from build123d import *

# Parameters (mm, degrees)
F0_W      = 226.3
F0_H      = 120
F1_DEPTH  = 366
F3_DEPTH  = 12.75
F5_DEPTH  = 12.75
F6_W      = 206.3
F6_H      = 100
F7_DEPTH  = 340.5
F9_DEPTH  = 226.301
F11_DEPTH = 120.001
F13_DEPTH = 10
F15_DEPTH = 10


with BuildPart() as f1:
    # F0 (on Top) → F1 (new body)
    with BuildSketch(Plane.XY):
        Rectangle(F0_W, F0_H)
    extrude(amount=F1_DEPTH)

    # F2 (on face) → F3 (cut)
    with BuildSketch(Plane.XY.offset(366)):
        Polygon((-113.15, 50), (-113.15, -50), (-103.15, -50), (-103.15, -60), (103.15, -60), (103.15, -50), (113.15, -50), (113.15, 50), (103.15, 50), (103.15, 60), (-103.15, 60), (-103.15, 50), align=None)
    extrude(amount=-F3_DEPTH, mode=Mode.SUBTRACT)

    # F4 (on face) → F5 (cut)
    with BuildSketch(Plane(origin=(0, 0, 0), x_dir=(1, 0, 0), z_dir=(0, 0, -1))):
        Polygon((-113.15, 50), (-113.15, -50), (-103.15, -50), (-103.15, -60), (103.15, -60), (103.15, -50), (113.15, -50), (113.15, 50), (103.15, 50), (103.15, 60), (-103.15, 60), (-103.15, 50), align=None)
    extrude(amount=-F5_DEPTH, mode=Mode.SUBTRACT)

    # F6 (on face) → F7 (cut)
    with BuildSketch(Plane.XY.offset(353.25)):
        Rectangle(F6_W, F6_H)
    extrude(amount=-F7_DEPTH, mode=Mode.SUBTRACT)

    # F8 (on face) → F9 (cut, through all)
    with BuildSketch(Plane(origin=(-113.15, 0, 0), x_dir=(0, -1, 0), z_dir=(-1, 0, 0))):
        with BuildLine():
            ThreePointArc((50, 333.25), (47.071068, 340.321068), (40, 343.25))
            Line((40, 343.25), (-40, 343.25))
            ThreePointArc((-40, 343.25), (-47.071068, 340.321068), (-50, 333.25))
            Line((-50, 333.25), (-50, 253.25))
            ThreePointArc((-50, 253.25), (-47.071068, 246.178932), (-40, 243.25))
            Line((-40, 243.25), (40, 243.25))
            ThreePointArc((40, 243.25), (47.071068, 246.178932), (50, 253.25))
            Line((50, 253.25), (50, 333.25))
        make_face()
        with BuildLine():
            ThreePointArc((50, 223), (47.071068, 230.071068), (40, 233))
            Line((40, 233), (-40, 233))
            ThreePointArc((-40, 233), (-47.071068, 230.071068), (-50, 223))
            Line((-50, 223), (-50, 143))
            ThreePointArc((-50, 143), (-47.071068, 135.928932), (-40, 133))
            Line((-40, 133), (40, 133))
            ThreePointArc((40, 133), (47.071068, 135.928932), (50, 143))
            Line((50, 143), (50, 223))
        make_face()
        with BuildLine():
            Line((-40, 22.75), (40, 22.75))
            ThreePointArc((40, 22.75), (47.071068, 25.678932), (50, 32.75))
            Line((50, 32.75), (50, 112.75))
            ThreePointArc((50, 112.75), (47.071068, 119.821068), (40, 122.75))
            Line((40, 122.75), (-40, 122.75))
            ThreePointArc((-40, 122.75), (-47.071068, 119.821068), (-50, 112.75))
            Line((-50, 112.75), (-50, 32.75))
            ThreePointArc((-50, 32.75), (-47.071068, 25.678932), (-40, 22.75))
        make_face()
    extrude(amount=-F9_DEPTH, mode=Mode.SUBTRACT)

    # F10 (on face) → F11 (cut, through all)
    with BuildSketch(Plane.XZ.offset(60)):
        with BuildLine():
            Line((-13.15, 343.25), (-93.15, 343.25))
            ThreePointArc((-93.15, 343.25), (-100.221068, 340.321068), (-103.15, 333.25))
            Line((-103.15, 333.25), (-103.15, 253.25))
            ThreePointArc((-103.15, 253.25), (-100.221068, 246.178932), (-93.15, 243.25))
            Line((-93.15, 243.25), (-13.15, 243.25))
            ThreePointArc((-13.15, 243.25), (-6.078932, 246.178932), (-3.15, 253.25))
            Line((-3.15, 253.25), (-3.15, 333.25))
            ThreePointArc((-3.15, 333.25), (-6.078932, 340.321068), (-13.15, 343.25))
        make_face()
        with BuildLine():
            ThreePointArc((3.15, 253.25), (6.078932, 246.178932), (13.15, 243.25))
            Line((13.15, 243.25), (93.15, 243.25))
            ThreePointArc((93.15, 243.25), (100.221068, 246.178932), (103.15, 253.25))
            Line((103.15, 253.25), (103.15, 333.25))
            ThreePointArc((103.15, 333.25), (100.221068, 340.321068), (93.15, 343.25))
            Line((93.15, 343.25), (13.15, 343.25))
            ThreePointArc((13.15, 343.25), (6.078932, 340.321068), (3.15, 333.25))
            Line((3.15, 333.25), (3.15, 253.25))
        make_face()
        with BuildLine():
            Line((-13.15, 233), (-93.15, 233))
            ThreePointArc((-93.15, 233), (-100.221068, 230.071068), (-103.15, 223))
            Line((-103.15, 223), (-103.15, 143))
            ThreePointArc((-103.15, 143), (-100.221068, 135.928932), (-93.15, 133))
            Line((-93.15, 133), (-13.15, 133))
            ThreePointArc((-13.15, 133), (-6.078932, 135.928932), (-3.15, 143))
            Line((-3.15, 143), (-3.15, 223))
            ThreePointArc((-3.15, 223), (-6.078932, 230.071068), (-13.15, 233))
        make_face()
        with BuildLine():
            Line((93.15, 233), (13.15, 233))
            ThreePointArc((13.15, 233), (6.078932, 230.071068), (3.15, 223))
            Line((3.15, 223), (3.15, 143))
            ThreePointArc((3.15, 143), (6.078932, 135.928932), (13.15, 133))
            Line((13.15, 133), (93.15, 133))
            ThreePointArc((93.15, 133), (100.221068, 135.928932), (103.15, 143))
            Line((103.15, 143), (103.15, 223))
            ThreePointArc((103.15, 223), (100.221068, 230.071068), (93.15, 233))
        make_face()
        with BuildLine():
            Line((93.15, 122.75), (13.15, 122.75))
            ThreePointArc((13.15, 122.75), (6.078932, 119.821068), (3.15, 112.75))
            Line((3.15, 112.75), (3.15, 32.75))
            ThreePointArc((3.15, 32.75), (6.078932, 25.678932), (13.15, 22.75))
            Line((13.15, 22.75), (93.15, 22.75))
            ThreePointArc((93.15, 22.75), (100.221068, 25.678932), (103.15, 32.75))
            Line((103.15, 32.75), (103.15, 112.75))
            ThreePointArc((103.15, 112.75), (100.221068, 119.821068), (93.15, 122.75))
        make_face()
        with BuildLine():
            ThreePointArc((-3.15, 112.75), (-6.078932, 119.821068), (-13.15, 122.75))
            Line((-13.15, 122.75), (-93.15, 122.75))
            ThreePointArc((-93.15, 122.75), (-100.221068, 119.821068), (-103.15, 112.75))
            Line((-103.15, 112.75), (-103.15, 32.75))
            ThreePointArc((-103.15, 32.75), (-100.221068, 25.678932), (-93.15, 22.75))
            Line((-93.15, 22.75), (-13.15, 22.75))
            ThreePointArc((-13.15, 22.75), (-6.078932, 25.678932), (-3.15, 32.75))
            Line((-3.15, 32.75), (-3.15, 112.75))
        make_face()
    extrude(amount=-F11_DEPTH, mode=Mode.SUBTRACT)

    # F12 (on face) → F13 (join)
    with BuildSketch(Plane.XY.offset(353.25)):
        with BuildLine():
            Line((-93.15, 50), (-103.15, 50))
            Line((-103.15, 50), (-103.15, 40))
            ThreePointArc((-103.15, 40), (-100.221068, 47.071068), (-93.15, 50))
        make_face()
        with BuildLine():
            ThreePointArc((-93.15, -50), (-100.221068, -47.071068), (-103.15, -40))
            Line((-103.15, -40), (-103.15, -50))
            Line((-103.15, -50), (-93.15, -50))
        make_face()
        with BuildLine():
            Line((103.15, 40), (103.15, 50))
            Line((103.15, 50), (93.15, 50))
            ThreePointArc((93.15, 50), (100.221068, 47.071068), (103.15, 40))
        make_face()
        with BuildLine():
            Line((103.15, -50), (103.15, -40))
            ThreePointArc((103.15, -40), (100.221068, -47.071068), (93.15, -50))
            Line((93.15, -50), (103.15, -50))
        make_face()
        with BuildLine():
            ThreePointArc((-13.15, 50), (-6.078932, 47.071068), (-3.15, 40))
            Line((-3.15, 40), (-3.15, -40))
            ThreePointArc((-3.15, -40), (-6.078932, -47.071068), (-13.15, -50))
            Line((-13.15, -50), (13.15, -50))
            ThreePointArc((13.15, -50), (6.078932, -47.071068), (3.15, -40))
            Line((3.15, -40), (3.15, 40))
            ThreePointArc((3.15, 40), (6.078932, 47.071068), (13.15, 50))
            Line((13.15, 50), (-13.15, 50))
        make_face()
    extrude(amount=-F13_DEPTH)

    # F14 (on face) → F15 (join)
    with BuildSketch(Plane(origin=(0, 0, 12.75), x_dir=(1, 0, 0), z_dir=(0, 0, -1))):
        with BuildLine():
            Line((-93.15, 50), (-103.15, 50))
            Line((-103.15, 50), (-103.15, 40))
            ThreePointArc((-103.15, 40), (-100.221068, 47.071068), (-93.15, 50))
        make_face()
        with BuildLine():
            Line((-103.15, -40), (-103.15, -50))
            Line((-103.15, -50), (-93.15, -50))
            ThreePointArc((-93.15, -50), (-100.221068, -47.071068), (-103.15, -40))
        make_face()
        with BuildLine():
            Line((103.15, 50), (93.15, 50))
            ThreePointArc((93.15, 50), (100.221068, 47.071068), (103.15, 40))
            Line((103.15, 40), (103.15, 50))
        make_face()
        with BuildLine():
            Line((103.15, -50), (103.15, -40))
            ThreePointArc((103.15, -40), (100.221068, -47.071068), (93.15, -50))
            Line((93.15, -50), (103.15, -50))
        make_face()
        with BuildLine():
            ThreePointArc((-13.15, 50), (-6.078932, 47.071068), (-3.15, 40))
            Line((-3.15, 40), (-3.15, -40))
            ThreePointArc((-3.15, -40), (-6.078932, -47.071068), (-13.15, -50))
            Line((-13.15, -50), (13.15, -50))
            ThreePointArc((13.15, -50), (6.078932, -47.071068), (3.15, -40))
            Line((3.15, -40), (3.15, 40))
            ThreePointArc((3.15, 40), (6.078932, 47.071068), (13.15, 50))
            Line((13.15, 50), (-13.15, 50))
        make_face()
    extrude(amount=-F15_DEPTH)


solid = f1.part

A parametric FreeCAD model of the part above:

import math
import FreeCAD as App
import Part
import Sketcher

V = App.Vector

doc = App.newDocument("Part")
body = doc.addObject("PartDesign::Body", "Body")

# Sketch on XY plane
sketch1 = doc.addObject("Sketcher::SketchObject", "Sketch")
body.addObject(sketch1)
sketch1.AttachmentSupport = (doc.XY_Plane, [""])
sketch1.MapMode = "FlatFace"
sketch1.addGeometry(Part.LineSegment(V(-113, 60, 0), V(-113, -60, 0)), False)
sketch1.addGeometry(Part.LineSegment(V(-113, -60, 0), V(113, -60, 0)), False)
sketch1.addGeometry(Part.LineSegment(V(113, -60, 0), V(113, 60, 0)), False)
sketch1.addGeometry(Part.LineSegment(V(113, 60, 0), V(-113, 60, 0)), False)
sketch1.addConstraint(Sketcher.Constraint("Coincident", 0, 2, 1, 1))
sketch1.addConstraint(Sketcher.Constraint("Coincident", 1, 2, 2, 1))
sketch1.addConstraint(Sketcher.Constraint("Coincident", 2, 2, 3, 1))
sketch1.addConstraint(Sketcher.Constraint("Coincident", 3, 2, 0, 1))
sketch1.addConstraint(Sketcher.Constraint("Vertical", 0))
sketch1.addConstraint(Sketcher.Constraint("Horizontal", 1))
sketch1.addConstraint(Sketcher.Constraint("Vertical", 2))
sketch1.addConstraint(Sketcher.Constraint("Horizontal", 3))
sketch1.addConstraint(Sketcher.Constraint("Symmetric", 0, 2, 2, 2, -1, 1))
sketch1.addConstraint(Sketcher.Constraint("DistanceY", 0, 2, 0, 1, 120.0))
sketch1.addConstraint(Sketcher.Constraint("DistanceX", 1, 1, 1, 2, 226.3))
pad1 = doc.addObject("PartDesign::Pad", "Pad")
body.addObject(pad1)
pad1.Profile = sketch1
pad1.Length = 366

# Sketch on XY plane
sketch2 = doc.addObject("Sketcher::SketchObject", "Sketch001")
body.addObject(sketch2)
sketch2.AttachmentSupport = (doc.XY_Plane, [""])
sketch2.MapMode = "FlatFace"
sketch2.AttachmentOffset = App.Placement(V(0, 0, 366), App.Rotation())
sketch2.addGeometry(Part.LineSegment(V(-113, 50, 0), V(-113, -50, 0)), False)
sketch2.addGeometry(Part.LineSegment(V(-113, -50, 0), V(-103, -50, 0)), False)
sketch2.addGeometry(Part.LineSegment(V(-103, -50, 0), V(-103, -60, 0)), False)
sketch2.addGeometry(Part.LineSegment(V(-103, -60, 0), V(103, -60, 0)), False)
sketch2.addGeometry(Part.LineSegment(V(103, -60, 0), V(103, -50, 0)), False)
sketch2.addGeometry(Part.LineSegment(V(103, -50, 0), V(113, -50, 0)), False)
sketch2.addGeometry(Part.LineSegment(V(113, -50, 0), V(113, 50, 0)), False)
sketch2.addGeometry(Part.LineSegment(V(113, 50, 0), V(103, 50, 0)), False)
sketch2.addGeometry(Part.LineSegment(V(103, 50, 0), V(103, 60, 0)), False)
sketch2.addGeometry(Part.LineSegment(V(103, 60, 0), V(-103, 60, 0)), False)
sketch2.addGeometry(Part.LineSegment(V(-103, 60, 0), V(-103, 50, 0)), False)
sketch2.addGeometry(Part.LineSegment(V(-103, 50, 0), V(-113, 50, 0)), False)
sketch2.addConstraint(Sketcher.Constraint("Coincident", 0, 2, 1, 1))
sketch2.addConstraint(Sketcher.Constraint("Coincident", 1, 2, 2, 1))
sketch2.addConstraint(Sketcher.Constraint("Coincident", 2, 2, 3, 1))
sketch2.addConstraint(Sketcher.Constraint("Coincident", 3, 2, 4, 1))
sketch2.addConstraint(Sketcher.Constraint("Coincident", 4, 2, 5, 1))
sketch2.addConstraint(Sketcher.Constraint("Coincident", 5, 2, 6, 1))
sketch2.addConstraint(Sketcher.Constraint("Coincident", 6, 2, 7, 1))
sketch2.addConstraint(Sketcher.Constraint("Coincident", 7, 2, 8, 1))
sketch2.addConstraint(Sketcher.Constraint("Coincident", 8, 2, 9, 1))
sketch2.addConstraint(Sketcher.Constraint("Coincident", 9, 2, 10, 1))
sketch2.addConstraint(Sketcher.Constraint("Coincident", 10, 2, 11, 1))
sketch2.addConstraint(Sketcher.Constraint("Coincident", 11, 2, 0, 1))
sketch2.addConstraint(Sketcher.Constraint("Vertical", 0))
sketch2.addConstraint(Sketcher.Constraint("Horizontal", 1))
sketch2.addConstraint(Sketcher.Constraint("Vertical", 2))
sketch2.addConstraint(Sketcher.Constraint("Horizontal", 3))
sketch2.addConstraint(Sketcher.Constraint("Vertical", 4))
sketch2.addConstraint(Sketcher.Constraint("Horizontal", 5))
sketch2.addConstraint(Sketcher.Constraint("Vertical", 6))
sketch2.addConstraint(Sketcher.Constraint("Horizontal", 7))
sketch2.addConstraint(Sketcher.Constraint("Vertical", 8))
sketch2.addConstraint(Sketcher.Constraint("Horizontal", 9))
sketch2.addConstraint(Sketcher.Constraint("Vertical", 10))
sketch2.addConstraint(Sketcher.Constraint("Horizontal", 11))
sketch2.addConstraint(Sketcher.Constraint("Symmetric", 0, 2, 6, 2, -1, 1))
sketch2.addConstraint(Sketcher.Constraint("Symmetric", 2, 2, 8, 2, -1, 1))
sketch2.addConstraint(Sketcher.Constraint("Symmetric", 4, 2, 10, 2, -1, 1))
sketch2.addConstraint(Sketcher.Constraint("Symmetric", 1, 2, 4, 2, -2))
sketch2.addConstraint(Sketcher.Constraint("Equal", 11, 2))
sketch2.addConstraint(Sketcher.Constraint("DistanceX", 1, 1, 1, 2, 10.0))
sketch2.addConstraint(Sketcher.Constraint("DistanceY", 0, 2, 0, 1, 100.0))
sketch2.addConstraint(Sketcher.Constraint("DistanceX", 3, 1, 3, 2, 206.3))
pocket1 = doc.addObject("PartDesign::Pocket", "Pocket")
body.addObject(pocket1)
pocket1.Profile = sketch2
pocket1.Length = 12.75

# Sketch on XY plane
sketch3 = doc.addObject("Sketcher::SketchObject", "Sketch002")
body.addObject(sketch3)
sketch3.AttachmentSupport = (doc.XY_Plane, [""])
sketch3.MapMode = "FlatFace"
sketch3.addGeometry(Part.LineSegment(V(-113, -50, 0), V(-113, 50, 0)), False)
sketch3.addGeometry(Part.LineSegment(V(-113, 50, 0), V(-103, 50, 0)), False)
sketch3.addGeometry(Part.LineSegment(V(-103, 50, 0), V(-103, 60, 0)), False)
sketch3.addGeometry(Part.LineSegment(V(-103, 60, 0), V(103, 60, 0)), False)
sketch3.addGeometry(Part.LineSegment(V(103, 60, 0), V(103, 50, 0)), False)
sketch3.addGeometry(Part.LineSegment(V(103, 50, 0), V(113, 50, 0)), False)
sketch3.addGeometry(Part.LineSegment(V(113, 50, 0), V(113, -50, 0)), False)
sketch3.addGeometry(Part.LineSegment(V(113, -50, 0), V(103, -50, 0)), False)
sketch3.addGeometry(Part.LineSegment(V(103, -50, 0), V(103, -60, 0)), False)
sketch3.addGeometry(Part.LineSegment(V(103, -60, 0), V(-103, -60, 0)), False)
sketch3.addGeometry(Part.LineSegment(V(-103, -60, 0), V(-103, -50, 0)), False)
sketch3.addGeometry(Part.LineSegment(V(-103, -50, 0), V(-113, -50, 0)), False)
sketch3.addConstraint(Sketcher.Constraint("Coincident", 0, 2, 1, 1))
sketch3.addConstraint(Sketcher.Constraint("Coincident", 1, 2, 2, 1))
sketch3.addConstraint(Sketcher.Constraint("Coincident", 2, 2, 3, 1))
sketch3.addConstraint(Sketcher.Constraint("Coincident", 3, 2, 4, 1))
sketch3.addConstraint(Sketcher.Constraint("Coincident", 4, 2, 5, 1))
sketch3.addConstraint(Sketcher.Constraint("Coincident", 5, 2, 6, 1))
sketch3.addConstraint(Sketcher.Constraint("Coincident", 6, 2, 7, 1))
sketch3.addConstraint(Sketcher.Constraint("Coincident", 7, 2, 8, 1))
sketch3.addConstraint(Sketcher.Constraint("Coincident", 8, 2, 9, 1))
sketch3.addConstraint(Sketcher.Constraint("Coincident", 9, 2, 10, 1))
sketch3.addConstraint(Sketcher.Constraint("Coincident", 10, 2, 11, 1))
sketch3.addConstraint(Sketcher.Constraint("Coincident", 11, 2, 0, 1))
sketch3.addConstraint(Sketcher.Constraint("Vertical", 0))
sketch3.addConstraint(Sketcher.Constraint("Horizontal", 1))
sketch3.addConstraint(Sketcher.Constraint("Vertical", 2))
sketch3.addConstraint(Sketcher.Constraint("Horizontal", 3))
sketch3.addConstraint(Sketcher.Constraint("Vertical", 4))
sketch3.addConstraint(Sketcher.Constraint("Horizontal", 5))
sketch3.addConstraint(Sketcher.Constraint("Vertical", 6))
sketch3.addConstraint(Sketcher.Constraint("Horizontal", 7))
sketch3.addConstraint(Sketcher.Constraint("Vertical", 8))
sketch3.addConstraint(Sketcher.Constraint("Horizontal", 9))
sketch3.addConstraint(Sketcher.Constraint("Vertical", 10))
sketch3.addConstraint(Sketcher.Constraint("Horizontal", 11))
sketch3.addConstraint(Sketcher.Constraint("Symmetric", 0, 2, 6, 2, -1, 1))
sketch3.addConstraint(Sketcher.Constraint("Symmetric", 2, 2, 8, 2, -1, 1))
sketch3.addConstraint(Sketcher.Constraint("Symmetric", 4, 2, 10, 2, -1, 1))
sketch3.addConstraint(Sketcher.Constraint("Symmetric", 1, 2, 4, 2, -2))
sketch3.addConstraint(Sketcher.Constraint("Equal", 11, 2))
sketch3.addConstraint(Sketcher.Constraint("DistanceX", 1, 1, 1, 2, 10.0))
sketch3.addConstraint(Sketcher.Constraint("DistanceY", 0, 1, 0, 2, 100.0))
sketch3.addConstraint(Sketcher.Constraint("DistanceX", 3, 1, 3, 2, 206.3))
pocket2 = doc.addObject("PartDesign::Pocket", "Pocket001")
body.addObject(pocket2)
pocket2.Profile = sketch3
pocket2.Length = 12.75
pocket2.Reversed = True

# Sketch on XY plane
sketch4 = doc.addObject("Sketcher::SketchObject", "Sketch003")
body.addObject(sketch4)
sketch4.AttachmentSupport = (doc.XY_Plane, [""])
sketch4.MapMode = "FlatFace"
sketch4.AttachmentOffset = App.Placement(V(0, 0, 353.25), App.Rotation())
sketch4.addGeometry(Part.LineSegment(V(-103, 50, 0), V(-103, -50, 0)), False)
sketch4.addGeometry(Part.LineSegment(V(-103, -50, 0), V(103, -50, 0)), False)
sketch4.addGeometry(Part.LineSegment(V(103, -50, 0), V(103, 50, 0)), False)
sketch4.addGeometry(Part.LineSegment(V(103, 50, 0), V(-103, 50, 0)), False)
sketch4.addConstraint(Sketcher.Constraint("Coincident", 0, 2, 1, 1))
sketch4.addConstraint(Sketcher.Constraint("Coincident", 1, 2, 2, 1))
sketch4.addConstraint(Sketcher.Constraint("Coincident", 2, 2, 3, 1))
sketch4.addConstraint(Sketcher.Constraint("Coincident", 3, 2, 0, 1))
sketch4.addConstraint(Sketcher.Constraint("Vertical", 0))
sketch4.addConstraint(Sketcher.Constraint("Horizontal", 1))
sketch4.addConstraint(Sketcher.Constraint("Vertical", 2))
sketch4.addConstraint(Sketcher.Constraint("Horizontal", 3))
sketch4.addConstraint(Sketcher.Constraint("Symmetric", 0, 2, 2, 2, -1, 1))
sketch4.addConstraint(Sketcher.Constraint("DistanceY", 0, 2, 0, 1, 100.0))
sketch4.addConstraint(Sketcher.Constraint("DistanceX", 1, 1, 1, 2, 206.3))
pocket3 = doc.addObject("PartDesign::Pocket", "Pocket002")
body.addObject(pocket3)
pocket3.Profile = sketch4
pocket3.Length = 340.5

# Sketch on YZ plane
sketch5 = doc.addObject("Sketcher::SketchObject", "Sketch004")
body.addObject(sketch5)
sketch5.AttachmentSupport = (doc.YZ_Plane, [""])
sketch5.MapMode = "FlatFace"
sketch5.AttachmentOffset = App.Placement(V(0, 0, -113.15), App.Rotation())
sketch5.addGeometry(Part.ArcOfCircle(Part.Circle(V(-40, 333, 0), V(0, 0, 1), 10), math.radians(90), math.radians(180)), False)
sketch5.addGeometry(Part.LineSegment(V(-40, 343, 0), V(40, 343, 0)), False)
sketch5.addGeometry(Part.ArcOfCircle(Part.Circle(V(40, 333, 0), V(0, 0, 1), 10), math.radians(0), math.radians(90)), False)
sketch5.addGeometry(Part.LineSegment(V(50, 333, 0), V(50, 253, 0)), False)
sketch5.addGeometry(Part.ArcOfCircle(Part.Circle(V(40, 253, 0), V(0, 0, 1), 10), math.radians(-90), math.radians(0)), False)
sketch5.addGeometry(Part.LineSegment(V(40, 243, 0), V(-40, 243, 0)), False)
sketch5.addGeometry(Part.ArcOfCircle(Part.Circle(V(-40, 253, 0), V(0, 0, 1), 10), math.radians(180), math.radians(270)), False)
sketch5.addGeometry(Part.LineSegment(V(-50, 253, 0), V(-50, 333, 0)), False)
sketch5.addGeometry(Part.ArcOfCircle(Part.Circle(V(-40, 223, 0), V(0, 0, 1), 10), math.radians(90), math.radians(180)), False)
sketch5.addGeometry(Part.LineSegment(V(-40, 233, 0), V(40, 233, 0)), False)
sketch5.addGeometry(Part.ArcOfCircle(Part.Circle(V(40, 223, 0), V(0, 0, 1), 10), math.radians(0), math.radians(90)), False)
sketch5.addGeometry(Part.LineSegment(V(50, 223, 0), V(50, 143, 0)), False)
sketch5.addGeometry(Part.ArcOfCircle(Part.Circle(V(40, 143, 0), V(0, 0, 1), 10), math.radians(-90), math.radians(0)), False)
sketch5.addGeometry(Part.LineSegment(V(40, 133, 0), V(-40, 133, 0)), False)
sketch5.addGeometry(Part.ArcOfCircle(Part.Circle(V(-40, 143, 0), V(0, 0, 1), 10), math.radians(180), math.radians(270)), False)
sketch5.addGeometry(Part.LineSegment(V(-50, 143, 0), V(-50, 223, 0)), False)
sketch5.addGeometry(Part.LineSegment(V(40, 23, 0), V(-40, 23, 0)), False)
sketch5.addGeometry(Part.ArcOfCircle(Part.Circle(V(-40, 33, 0), V(0, 0, 1), 10), math.radians(180), math.radians(270)), False)
sketch5.addGeometry(Part.LineSegment(V(-50, 33, 0), V(-50, 113, 0)), False)
sketch5.addGeometry(Part.ArcOfCircle(Part.Circle(V(-40, 113, 0), V(0, 0, 1), 10), math.radians(90), math.radians(180)), False)
sketch5.addGeometry(Part.LineSegment(V(-40, 123, 0), V(40, 123, 0)), False)
sketch5.addGeometry(Part.ArcOfCircle(Part.Circle(V(40, 113, 0), V(0, 0, 1), 10), math.radians(0), math.radians(90)), False)
sketch5.addGeometry(Part.LineSegment(V(50, 113, 0), V(50, 33, 0)), False)
sketch5.addGeometry(Part.ArcOfCircle(Part.Circle(V(40, 33, 0), V(0, 0, 1), 10), math.radians(-90), math.radians(0)), False)
sketch5.addConstraint(Sketcher.Constraint("Tangent", 0, 1, 1, 1))
sketch5.addConstraint(Sketcher.Constraint("Tangent", 1, 2, 2, 2))
sketch5.addConstraint(Sketcher.Constraint("Tangent", 2, 1, 3, 1))
sketch5.addConstraint(Sketcher.Constraint("Tangent", 3, 2, 4, 2))
sketch5.addConstraint(Sketcher.Constraint("Tangent", 4, 1, 5, 1))
sketch5.addConstraint(Sketcher.Constraint("Tangent", 5, 2, 6, 2))
sketch5.addConstraint(Sketcher.Constraint("Tangent", 6, 1, 7, 1))
sketch5.addConstraint(Sketcher.Constraint("Tangent", 7, 2, 0, 2))
sketch5.addConstraint(Sketcher.Constraint("Tangent", 8, 1, 9, 1))
sketch5.addConstraint(Sketcher.Constraint("Tangent", 9, 2, 10, 2))
sketch5.addConstraint(Sketcher.Constraint("Tangent", 10, 1, 11, 1))
sketch5.addConstraint(Sketcher.Constraint("Tangent", 11, 2, 12, 2))
sketch5.addConstraint(Sketcher.Constraint("Tangent", 12, 1, 13, 1))
sketch5.addConstraint(Sketcher.Constraint("Tangent", 13, 2, 14, 2))
sketch5.addConstraint(Sketcher.Constraint("Tangent", 14, 1, 15, 1))
sketch5.addConstraint(Sketcher.Constraint("Tangent", 15, 2, 8, 2))
sketch5.addConstraint(Sketcher.Constraint("Tangent", 16, 2, 17, 2))
sketch5.addConstraint(Sketcher.Constraint("Tangent", 17, 1, 18, 1))
sketch5.addConstraint(Sketcher.Constraint("Tangent", 18, 2, 19, 2))
sketch5.addConstraint(Sketcher.Constraint("Tangent", 19, 1, 20, 1))
sketch5.addConstraint(Sketcher.Constraint("Tangent", 20, 2, 21, 2))
sketch5.addConstraint(Sketcher.Constraint("Tangent", 21, 1, 22, 1))
sketch5.addConstraint(Sketcher.Constraint("Tangent", 22, 2, 23, 2))
sketch5.addConstraint(Sketcher.Constraint("Tangent", 23, 1, 16, 1))
sketch5.addConstraint(Sketcher.Constraint("Horizontal", 1))
sketch5.addConstraint(Sketcher.Constraint("Vertical", 3))
sketch5.addConstraint(Sketcher.Constraint("Horizontal", 5))
sketch5.addConstraint(Sketcher.Constraint("Vertical", 7))
sketch5.addConstraint(Sketcher.Constraint("Horizontal", 9))
sketch5.addConstraint(Sketcher.Constraint("Vertical", 11))
sketch5.addConstraint(Sketcher.Constraint("Horizontal", 13))
sketch5.addConstraint(Sketcher.Constraint("Vertical", 15))
sketch5.addConstraint(Sketcher.Constraint("Horizontal", 16))
sketch5.addConstraint(Sketcher.Constraint("Vertical", 18))
sketch5.addConstraint(Sketcher.Constraint("Horizontal", 20))
sketch5.addConstraint(Sketcher.Constraint("Vertical", 22))
sketch5.addConstraint(Sketcher.Constraint("Equal", 0, 2))
sketch5.addConstraint(Sketcher.Constraint("Equal", 2, 4))
sketch5.addConstraint(Sketcher.Constraint("Equal", 4, 6))
sketch5.addConstraint(Sketcher.Constraint("Equal", 6, 8))
sketch5.addConstraint(Sketcher.Constraint("Equal", 8, 10))
sketch5.addConstraint(Sketcher.Constraint("Equal", 10, 12))
sketch5.addConstraint(Sketcher.Constraint("Equal", 12, 14))
sketch5.addConstraint(Sketcher.Constraint("Equal", 14, 17))
sketch5.addConstraint(Sketcher.Constraint("Equal", 17, 19))
sketch5.addConstraint(Sketcher.Constraint("Equal", 19, 21))
sketch5.addConstraint(Sketcher.Constraint("Equal", 21, 23))
sketch5.addConstraint(Sketcher.Constraint("Vertical", 6, 3, 8, 3))
sketch5.addConstraint(Sketcher.Constraint("Vertical", 4, 3, 10, 3))
sketch5.addConstraint(Sketcher.Constraint("Vertical", 14, 3, 17, 3))
sketch5.addConstraint(Sketcher.Constraint("Vertical", 12, 3, 21, 3))
sketch5.addConstraint(Sketcher.Constraint("Equal", 20, 3))
sketch5.addConstraint(Sketcher.Constraint("Equal", 7, 11))
sketch5.addConstraint(Sketcher.Constraint("Equal", 15, 18))
sketch5.addConstraint(Sketcher.Constraint("Radius", 0, 9.999999))
sketch5.addConstraint(Sketcher.Constraint("DistanceX", 1, 1, 1, 2, 80.0))
sketch5.addConstraint(Sketcher.Constraint("DistanceX", 0, 3, -1, 1, 40.000001))
sketch5.addConstraint(Sketcher.Constraint("DistanceY", -1, 1, 8, 3, 223.000001))
sketch5.addConstraint(Sketcher.Constraint("DistanceY", 17, 3, 6, 3, 220.5))
sketch5.addConstraint(Sketcher.Constraint("DistanceY", -1, 1, 0, 3, 333.250001))
pocket4 = doc.addObject("PartDesign::Pocket", "Pocket003")
body.addObject(pocket4)
pocket4.Profile = sketch5
pocket4.Type = "ThroughAll"
pocket4.Reversed = True

# Sketch on XZ plane
sketch6 = doc.addObject("Sketcher::SketchObject", "Sketch005")
body.addObject(sketch6)
sketch6.AttachmentSupport = (doc.XZ_Plane, [""])
sketch6.MapMode = "FlatFace"
sketch6.AttachmentOffset = App.Placement(V(0, 0, 60), App.Rotation())
sketch6.addGeometry(Part.LineSegment(V(-13, 343, 0), V(-93, 343, 0)), False)
sketch6.addGeometry(Part.ArcOfCircle(Part.Circle(V(-93, 333, 0), V(0, 0, 1), 10), math.radians(90), math.radians(180)), False)
sketch6.addGeometry(Part.LineSegment(V(-103, 333, 0), V(-103, 253, 0)), False)
sketch6.addGeometry(Part.ArcOfCircle(Part.Circle(V(-93, 253, 0), V(0, 0, 1), 10), math.radians(180), math.radians(270)), False)
sketch6.addGeometry(Part.LineSegment(V(-93, 243, 0), V(-13, 243, 0)), False)
sketch6.addGeometry(Part.ArcOfCircle(Part.Circle(V(-13, 253, 0), V(0, 0, 1), 10), math.radians(-90), math.radians(0)), False)
sketch6.addGeometry(Part.LineSegment(V(-3, 253, 0), V(-3, 333, 0)), False)
sketch6.addGeometry(Part.ArcOfCircle(Part.Circle(V(-13, 333, 0), V(0, 0, 1), 10), math.radians(0), math.radians(90)), False)
sketch6.addGeometry(Part.ArcOfCircle(Part.Circle(V(13, 253, 0), V(0, 0, 1), 10), math.radians(180), math.radians(270)), False)
sketch6.addGeometry(Part.LineSegment(V(13, 243, 0), V(93, 243, 0)), False)
sketch6.addGeometry(Part.ArcOfCircle(Part.Circle(V(93, 253, 0), V(0, 0, 1), 10), math.radians(-90), math.radians(0)), False)
sketch6.addGeometry(Part.LineSegment(V(103, 253, 0), V(103, 333, 0)), False)
sketch6.addGeometry(Part.ArcOfCircle(Part.Circle(V(93, 333, 0), V(0, 0, 1), 10), math.radians(0), math.radians(90)), False)
sketch6.addGeometry(Part.LineSegment(V(93, 343, 0), V(13, 343, 0)), False)
sketch6.addGeometry(Part.ArcOfCircle(Part.Circle(V(13, 333, 0), V(0, 0, 1), 10), math.radians(90), math.radians(180)), False)
sketch6.addGeometry(Part.LineSegment(V(3, 333, 0), V(3, 253, 0)), False)
sketch6.addGeometry(Part.LineSegment(V(-13, 233, 0), V(-93, 233, 0)), False)
sketch6.addGeometry(Part.ArcOfCircle(Part.Circle(V(-93, 223, 0), V(0, 0, 1), 10), math.radians(90), math.radians(180)), False)
sketch6.addGeometry(Part.LineSegment(V(-103, 223, 0), V(-103, 143, 0)), False)
sketch6.addGeometry(Part.ArcOfCircle(Part.Circle(V(-93, 143, 0), V(0, 0, 1), 10), math.radians(180), math.radians(270)), False)
sketch6.addGeometry(Part.LineSegment(V(-93, 133, 0), V(-13, 133, 0)), False)
sketch6.addGeometry(Part.ArcOfCircle(Part.Circle(V(-13, 143, 0), V(0, 0, 1), 10), math.radians(-90), math.radians(0)), False)
sketch6.addGeometry(Part.LineSegment(V(-3, 143, 0), V(-3, 223, 0)), False)
sketch6.addGeometry(Part.ArcOfCircle(Part.Circle(V(-13, 223, 0), V(0, 0, 1), 10), math.radians(0), math.radians(90)), False)
sketch6.addGeometry(Part.LineSegment(V(93, 233, 0), V(13, 233, 0)), False)
sketch6.addGeometry(Part.ArcOfCircle(Part.Circle(V(13, 223, 0), V(0, 0, 1), 10), math.radians(90), math.radians(180)), False)
sketch6.addGeometry(Part.LineSegment(V(3, 223, 0), V(3, 143, 0)), False)
sketch6.addGeometry(Part.ArcOfCircle(Part.Circle(V(13, 143, 0), V(0, 0, 1), 10), math.radians(180), math.radians(270)), False)
sketch6.addGeometry(Part.LineSegment(V(13, 133, 0), V(93, 133, 0)), False)
sketch6.addGeometry(Part.ArcOfCircle(Part.Circle(V(93, 143, 0), V(0, 0, 1), 10), math.radians(-90), math.radians(0)), False)
sketch6.addGeometry(Part.LineSegment(V(103, 143, 0), V(103, 223, 0)), False)
sketch6.addGeometry(Part.ArcOfCircle(Part.Circle(V(93, 223, 0), V(0, 0, 1), 10), math.radians(0), math.radians(90)), False)
sketch6.addGeometry(Part.LineSegment(V(93, 123, 0), V(13, 123, 0)), False)
sketch6.addGeometry(Part.ArcOfCircle(Part.Circle(V(13, 113, 0), V(0, 0, 1), 10), math.radians(90), math.radians(180)), False)
sketch6.addGeometry(Part.LineSegment(V(3, 113, 0), V(3, 33, 0)), False)
sketch6.addGeometry(Part.ArcOfCircle(Part.Circle(V(13, 33, 0), V(0, 0, 1), 10), math.radians(180), math.radians(270)), False)
sketch6.addGeometry(Part.LineSegment(V(13, 23, 0), V(93, 23, 0)), False)
sketch6.addGeometry(Part.ArcOfCircle(Part.Circle(V(93, 33, 0), V(0, 0, 1), 10), math.radians(-90), math.radians(0)), False)
sketch6.addGeometry(Part.LineSegment(V(103, 33, 0), V(103, 113, 0)), False)
sketch6.addGeometry(Part.ArcOfCircle(Part.Circle(V(93, 113, 0), V(0, 0, 1), 10), math.radians(0), math.radians(90)), False)
sketch6.addGeometry(Part.ArcOfCircle(Part.Circle(V(-13, 113, 0), V(0, 0, 1), 10), math.radians(0), math.radians(90)), False)
sketch6.addGeometry(Part.LineSegment(V(-13, 123, 0), V(-93, 123, 0)), False)
sketch6.addGeometry(Part.ArcOfCircle(Part.Circle(V(-93, 113, 0), V(0, 0, 1), 10), math.radians(90), math.radians(180)), False)
sketch6.addGeometry(Part.LineSegment(V(-103, 113, 0), V(-103, 33, 0)), False)
sketch6.addGeometry(Part.ArcOfCircle(Part.Circle(V(-93, 33, 0), V(0, 0, 1), 10), math.radians(180), math.radians(270)), False)
sketch6.addGeometry(Part.LineSegment(V(-93, 23, 0), V(-13, 23, 0)), False)
sketch6.addGeometry(Part.ArcOfCircle(Part.Circle(V(-13, 33, 0), V(0, 0, 1), 10), math.radians(-90), math.radians(0)), False)
sketch6.addGeometry(Part.LineSegment(V(-3, 33, 0), V(-3, 113, 0)), False)
sketch6.addConstraint(Sketcher.Constraint("Tangent", 0, 2, 1, 1))
sketch6.addConstraint(Sketcher.Constraint("Tangent", 1, 2, 2, 1))
sketch6.addConstraint(Sketcher.Constraint("Tangent", 2, 2, 3, 1))
sketch6.addConstraint(Sketcher.Constraint("Tangent", 3, 2, 4, 1))
sketch6.addConstraint(Sketcher.Constraint("Tangent", 4, 2, 5, 1))
sketch6.addConstraint(Sketcher.Constraint("Tangent", 5, 2, 6, 1))
sketch6.addConstraint(Sketcher.Constraint("Tangent", 6, 2, 7, 1))
sketch6.addConstraint(Sketcher.Constraint("Tangent", 7, 2, 0, 1))
sketch6.addConstraint(Sketcher.Constraint("Tangent", 8, 2, 9, 1))
sketch6.addConstraint(Sketcher.Constraint("Tangent", 9, 2, 10, 1))
sketch6.addConstraint(Sketcher.Constraint("Tangent", 10, 2, 11, 1))
sketch6.addConstraint(Sketcher.Constraint("Tangent", 11, 2, 12, 1))
sketch6.addConstraint(Sketcher.Constraint("Tangent", 12, 2, 13, 1))
sketch6.addConstraint(Sketcher.Constraint("Tangent", 13, 2, 14, 1))
sketch6.addConstraint(Sketcher.Constraint("Tangent", 14, 2, 15, 1))
sketch6.addConstraint(Sketcher.Constraint("Tangent", 15, 2, 8, 1))
sketch6.addConstraint(Sketcher.Constraint("Tangent", 16, 2, 17, 1))
sketch6.addConstraint(Sketcher.Constraint("Tangent", 17, 2, 18, 1))
sketch6.addConstraint(Sketcher.Constraint("Tangent", 18, 2, 19, 1))
sketch6.addConstraint(Sketcher.Constraint("Tangent", 19, 2, 20, 1))
sketch6.addConstraint(Sketcher.Constraint("Tangent", 20, 2, 21, 1))
sketch6.addConstraint(Sketcher.Constraint("Tangent", 21, 2, 22, 1))
sketch6.addConstraint(Sketcher.Constraint("Tangent", 22, 2, 23, 1))
sketch6.addConstraint(Sketcher.Constraint("Tangent", 23, 2, 16, 1))
sketch6.addConstraint(Sketcher.Constraint("Tangent", 24, 2, 25, 1))
sketch6.addConstraint(Sketcher.Constraint("Tangent", 25, 2, 26, 1))
sketch6.addConstraint(Sketcher.Constraint("Tangent", 26, 2, 27, 1))
sketch6.addConstraint(Sketcher.Constraint("Tangent", 27, 2, 28, 1))
sketch6.addConstraint(Sketcher.Constraint("Tangent", 28, 2, 29, 1))
sketch6.addConstraint(Sketcher.Constraint("Tangent", 29, 2, 30, 1))
sketch6.addConstraint(Sketcher.Constraint("Tangent", 30, 2, 31, 1))
sketch6.addConstraint(Sketcher.Constraint("Tangent", 31, 2, 24, 1))
sketch6.addConstraint(Sketcher.Constraint("Tangent", 32, 2, 33, 1))
sketch6.addConstraint(Sketcher.Constraint("Tangent", 33, 2, 34, 1))
sketch6.addConstraint(Sketcher.Constraint("Tangent", 34, 2, 35, 1))
sketch6.addConstraint(Sketcher.Constraint("Tangent", 35, 2, 36, 1))
sketch6.addConstraint(Sketcher.Constraint("Tangent", 36, 2, 37, 1))
sketch6.addConstraint(Sketcher.Constraint("Tangent", 37, 2, 38, 1))
sketch6.addConstraint(Sketcher.Constraint("Tangent", 38, 2, 39, 1))
sketch6.addConstraint(Sketcher.Constraint("Tangent", 39, 2, 32, 1))
sketch6.addConstraint(Sketcher.Constraint("Tangent", 40, 2, 41, 1))
sketch6.addConstraint(Sketcher.Constraint("Tangent", 41, 2, 42, 1))
sketch6.addConstraint(Sketcher.Constraint("Tangent", 42, 2, 43, 1))
sketch6.addConstraint(Sketcher.Constraint("Tangent", 43, 2, 44, 1))
sketch6.addConstraint(Sketcher.Constraint("Tangent", 44, 2, 45, 1))
sketch6.addConstraint(Sketcher.Constraint("Tangent", 45, 2, 46, 1))
sketch6.addConstraint(Sketcher.Constraint("Tangent", 46, 2, 47, 1))
sketch6.addConstraint(Sketcher.Constraint("Tangent", 47, 2, 40, 1))
sketch6.addConstraint(Sketcher.Constraint("Horizontal", 0))
sketch6.addConstraint(Sketcher.Constraint("Vertical", 2))
sketch6.addConstraint(Sketcher.Constraint("Horizontal", 4))
sketch6.addConstraint(Sketcher.Constraint("Vertical", 6))
sketch6.addConstraint(Sketcher.Constraint("Horizontal", 9))
sketch6.addConstraint(Sketcher.Constraint("Vertical", 11))
sketch6.addConstraint(Sketcher.Constraint("Horizontal", 13))
sketch6.addConstraint(Sketcher.Constraint("Vertical", 15))
sketch6.addConstraint(Sketcher.Constraint("Horizontal", 16))
sketch6.addConstraint(Sketcher.Constraint("Vertical", 18))
sketch6.addConstraint(Sketcher.Constraint("Horizontal", 20))
sketch6.addConstraint(Sketcher.Constraint("Vertical", 22))
sketch6.addConstraint(Sketcher.Constraint("Horizontal", 24))
sketch6.addConstraint(Sketcher.Constraint("Vertical", 26))
sketch6.addConstraint(Sketcher.Constraint("Horizontal", 28))
sketch6.addConstraint(Sketcher.Constraint("Vertical", 30))
sketch6.addConstraint(Sketcher.Constraint("Horizontal", 32))
sketch6.addConstraint(Sketcher.Constraint("Vertical", 34))
sketch6.addConstraint(Sketcher.Constraint("Horizontal", 36))
sketch6.addConstraint(Sketcher.Constraint("Vertical", 38))
sketch6.addConstraint(Sketcher.Constraint("Horizontal", 41))
sketch6.addConstraint(Sketcher.Constraint("Vertical", 43))
sketch6.addConstraint(Sketcher.Constraint("Horizontal", 45))
sketch6.addConstraint(Sketcher.Constraint("Vertical", 47))
sketch6.addConstraint(Sketcher.Constraint("Equal", 1, 3))
sketch6.addConstraint(Sketcher.Constraint("Equal", 3, 5))
sketch6.addConstraint(Sketcher.Constraint("Equal", 5, 7))
sketch6.addConstraint(Sketcher.Constraint("Equal", 7, 8))
sketch6.addConstraint(Sketcher.Constraint("Equal", 8, 10))
sketch6.addConstraint(Sketcher.Constraint("Equal", 10, 12))
sketch6.addConstraint(Sketcher.Constraint("Equal", 12, 14))
sketch6.addConstraint(Sketcher.Constraint("Equal", 14, 17))
sketch6.addConstraint(Sketcher.Constraint("Equal", 17, 19))
sketch6.addConstraint(Sketcher.Constraint("Equal", 19, 21))
sketch6.addConstraint(Sketcher.Constraint("Equal", 21, 23))
sketch6.addConstraint(Sketcher.Constraint("Equal", 23, 25))
sketch6.addConstraint(Sketcher.Constraint("Equal", 25, 27))
sketch6.addConstraint(Sketcher.Constraint("Equal", 27, 29))
sketch6.addConstraint(Sketcher.Constraint("Equal", 29, 31))
sketch6.addConstraint(Sketcher.Constraint("Equal", 31, 33))
sketch6.addConstraint(Sketcher.Constraint("Equal", 33, 35))
sketch6.addConstraint(Sketcher.Constraint("Equal", 35, 37))
sketch6.addConstraint(Sketcher.Constraint("Equal", 37, 39))
sketch6.addConstraint(Sketcher.Constraint("Equal", 39, 40))
sketch6.addConstraint(Sketcher.Constraint("Equal", 40, 42))
sketch6.addConstraint(Sketcher.Constraint("Equal", 42, 44))
sketch6.addConstraint(Sketcher.Constraint("Equal", 44, 46))
sketch6.addConstraint(Sketcher.Constraint("Symmetric", 5, 3, 8, 3, -2))
sketch6.addConstraint(Sketcher.Constraint("Symmetric", 1, 3, 12, 3, -2))
sketch6.addConstraint(Sketcher.Constraint("Symmetric", 23, 3, 25, 3, -2))
sketch6.addConstraint(Sketcher.Constraint("Symmetric", 19, 3, 29, 3, -2))
sketch6.addConstraint(Sketcher.Constraint("Symmetric", 33, 3, 40, 3, -2))
sketch6.addConstraint(Sketcher.Constraint("Symmetric", 37, 3, 44, 3, -2))
sketch6.addConstraint(Sketcher.Constraint("Vertical", 3, 3, 17, 3))
sketch6.addConstraint(Sketcher.Constraint("Vertical", 7, 3, 21, 3))
sketch6.addConstraint(Sketcher.Constraint("Vertical", 27, 3, 33, 3))
sketch6.addConstraint(Sketcher.Constraint("Vertical", 31, 3, 37, 3))
sketch6.addConstraint(Sketcher.Constraint("Equal", 45, 2))
sketch6.addConstraint(Sketcher.Constraint("Equal", 15, 18))
sketch6.addConstraint(Sketcher.Constraint("Equal", 30, 34))
sketch6.addConstraint(Sketcher.Constraint("Radius", 1, 9.999999))
sketch6.addConstraint(Sketcher.Constraint("DistanceX", 0, 2, 0, 1, 80.0))
sketch6.addConstraint(Sketcher.Constraint("DistanceY", -1, 1, 17, 3, 223.000001))
sketch6.addConstraint(Sketcher.Constraint("DistanceX", 1, 3, -1, 1, 93.150001))
sketch6.addConstraint(Sketcher.Constraint("DistanceY", -1, 1, 1, 3, 333.250001))
sketch6.addConstraint(Sketcher.Constraint("DistanceY", -1, 1, 33, 3, 112.750001))
pocket5 = doc.addObject("PartDesign::Pocket", "Pocket004")
body.addObject(pocket5)
pocket5.Profile = sketch6
pocket5.Type = "ThroughAll"

# Sketch on XY plane
sketch7 = doc.addObject("Sketcher::SketchObject", "Sketch006")
body.addObject(sketch7)
sketch7.AttachmentSupport = (doc.XY_Plane, [""])
sketch7.MapMode = "FlatFace"
sketch7.AttachmentOffset = App.Placement(V(0, 0, 353.25), App.Rotation())
sketch7.addGeometry(Part.LineSegment(V(-93, 50, 0), V(-103, 50, 0)), False)
sketch7.addGeometry(Part.LineSegment(V(-103, 50, 0), V(-103, 40, 0)), False)
sketch7.addGeometry(Part.ArcOfCircle(Part.Circle(V(-93, 40, 0), V(0, 0, 1), 10), math.radians(90), math.radians(180)), False)
sketch7.addGeometry(Part.ArcOfCircle(Part.Circle(V(-93, -40, 0), V(0, 0, 1), 10), math.radians(180), math.radians(270)), False)
sketch7.addGeometry(Part.LineSegment(V(-103, -40, 0), V(-103, -50, 0)), False)
sketch7.addGeometry(Part.LineSegment(V(-103, -50, 0), V(-93, -50, 0)), False)
sketch7.addGeometry(Part.LineSegment(V(103, 40, 0), V(103, 50, 0)), False)
sketch7.addGeometry(Part.LineSegment(V(103, 50, 0), V(93, 50, 0)), False)
sketch7.addGeometry(Part.ArcOfCircle(Part.Circle(V(93, 40, 0), V(0, 0, 1), 10), math.radians(0), math.radians(90)), False)
sketch7.addGeometry(Part.LineSegment(V(103, -50, 0), V(103, -40, 0)), False)
sketch7.addGeometry(Part.ArcOfCircle(Part.Circle(V(93, -40, 0), V(0, 0, 1), 10), math.radians(-90), math.radians(0)), False)
sketch7.addGeometry(Part.LineSegment(V(93, -50, 0), V(103, -50, 0)), False)
sketch7.addGeometry(Part.ArcOfCircle(Part.Circle(V(-13, 40, 0), V(0, 0, 1), 10), math.radians(0), math.radians(90)), False)
sketch7.addGeometry(Part.LineSegment(V(-3, 40, 0), V(-3, -40, 0)), False)
sketch7.addGeometry(Part.ArcOfCircle(Part.Circle(V(-13, -40, 0), V(0, 0, 1), 10), math.radians(-90), math.radians(0)), False)
sketch7.addGeometry(Part.LineSegment(V(-13, -50, 0), V(13, -50, 0)), False)
sketch7.addGeometry(Part.ArcOfCircle(Part.Circle(V(13, -40, 0), V(0, 0, 1), 10), math.radians(180), math.radians(270)), False)
sketch7.addGeometry(Part.LineSegment(V(3, -40, 0), V(3, 40, 0)), False)
sketch7.addGeometry(Part.ArcOfCircle(Part.Circle(V(13, 40, 0), V(0, 0, 1), 10), math.radians(90), math.radians(180)), False)
sketch7.addGeometry(Part.LineSegment(V(13, 50, 0), V(-13, 50, 0)), False)
sketch7.addConstraint(Sketcher.Constraint("Coincident", 0, 2, 1, 1))
sketch7.addConstraint(Sketcher.Constraint("Tangent", 1, 2, 2, 2))
sketch7.addConstraint(Sketcher.Constraint("Tangent", 2, 1, 0, 1))
sketch7.addConstraint(Sketcher.Constraint("Tangent", 3, 1, 4, 1))
sketch7.addConstraint(Sketcher.Constraint("Coincident", 4, 2, 5, 1))
sketch7.addConstraint(Sketcher.Constraint("Tangent", 5, 2, 3, 2))
sketch7.addConstraint(Sketcher.Constraint("Coincident", 6, 2, 7, 1))
sketch7.addConstraint(Sketcher.Constraint("Tangent", 7, 2, 8, 2))
sketch7.addConstraint(Sketcher.Constraint("Tangent", 8, 1, 6, 1))
sketch7.addConstraint(Sketcher.Constraint("Tangent", 9, 2, 10, 2))
sketch7.addConstraint(Sketcher.Constraint("Tangent", 10, 1, 11, 1))
sketch7.addConstraint(Sketcher.Constraint("Coincident", 11, 2, 9, 1))
sketch7.addConstraint(Sketcher.Constraint("Tangent", 12, 1, 13, 1))
sketch7.addConstraint(Sketcher.Constraint("Tangent", 13, 2, 14, 2))
sketch7.addConstraint(Sketcher.Constraint("Tangent", 14, 1, 15, 1))
sketch7.addConstraint(Sketcher.Constraint("Tangent", 15, 2, 16, 2))
sketch7.addConstraint(Sketcher.Constraint("Tangent", 16, 1, 17, 1))
sketch7.addConstraint(Sketcher.Constraint("Tangent", 17, 2, 18, 2))
sketch7.addConstraint(Sketcher.Constraint("Tangent", 18, 1, 19, 1))
sketch7.addConstraint(Sketcher.Constraint("Tangent", 19, 2, 12, 2))
sketch7.addConstraint(Sketcher.Constraint("Horizontal", 0))
sketch7.addConstraint(Sketcher.Constraint("Vertical", 1))
sketch7.addConstraint(Sketcher.Constraint("Vertical", 4))
sketch7.addConstraint(Sketcher.Constraint("Horizontal", 5))
sketch7.addConstraint(Sketcher.Constraint("Vertical", 6))
sketch7.addConstraint(Sketcher.Constraint("Horizontal", 7))
sketch7.addConstraint(Sketcher.Constraint("Vertical", 9))
sketch7.addConstraint(Sketcher.Constraint("Horizontal", 11))
sketch7.addConstraint(Sketcher.Constraint("Vertical", 13))
sketch7.addConstraint(Sketcher.Constraint("Horizontal", 15))
sketch7.addConstraint(Sketcher.Constraint("Vertical", 17))
sketch7.addConstraint(Sketcher.Constraint("Horizontal", 19))
sketch7.addConstraint(Sketcher.Constraint("Equal", 2, 3))
sketch7.addConstraint(Sketcher.Constraint("Equal", 3, 8))
sketch7.addConstraint(Sketcher.Constraint("Equal", 8, 10))
sketch7.addConstraint(Sketcher.Constraint("Equal", 10, 12))
sketch7.addConstraint(Sketcher.Constraint("Equal", 12, 14))
sketch7.addConstraint(Sketcher.Constraint("Equal", 14, 16))
sketch7.addConstraint(Sketcher.Constraint("Equal", 16, 18))
sketch7.addConstraint(Sketcher.Constraint("Symmetric", 3, 3, 8, 3, -1, 1))
sketch7.addConstraint(Sketcher.Constraint("Symmetric", 2, 3, 10, 3, -1, 1))
sketch7.addConstraint(Sketcher.Constraint("Symmetric", 12, 3, 16, 3, -1, 1))
sketch7.addConstraint(Sketcher.Constraint("Symmetric", 2, 3, 8, 3, -2))
sketch7.addConstraint(Sketcher.Constraint("Horizontal", 8, 3, 12, 3))
sketch7.addConstraint(Sketcher.Constraint("Radius", 2, 9.999999))
sketch7.addConstraint(Sketcher.Constraint("DistanceY", 13, 2, 13, 1, 80.0))
sketch7.addConstraint(Sketcher.Constraint("DistanceX", 15, 1, 15, 2, 26.3))
sketch7.addConstraint(Sketcher.Constraint("DistanceX", 2, 3, 12, 3, 80.000001))
pad2 = doc.addObject("PartDesign::Pad", "Pad001")
body.addObject(pad2)
pad2.Profile = sketch7
pad2.Length = 10
pad2.Reversed = True

# Sketch on XY plane
sketch8 = doc.addObject("Sketcher::SketchObject", "Sketch007")
body.addObject(sketch8)
sketch8.AttachmentSupport = (doc.XY_Plane, [""])
sketch8.MapMode = "FlatFace"
sketch8.AttachmentOffset = App.Placement(V(0, 0, 12.75), App.Rotation())
sketch8.addGeometry(Part.LineSegment(V(-93, -50, 0), V(-103, -50, 0)), False)
sketch8.addGeometry(Part.LineSegment(V(-103, -50, 0), V(-103, -40, 0)), False)
sketch8.addGeometry(Part.ArcOfCircle(Part.Circle(V(-93, -40, 0), V(0, 0, 1), 10), math.radians(180), math.radians(270)), False)
sketch8.addGeometry(Part.LineSegment(V(-103, 40, 0), V(-103, 50, 0)), False)
sketch8.addGeometry(Part.LineSegment(V(-103, 50, 0), V(-93, 50, 0)), False)
sketch8.addGeometry(Part.ArcOfCircle(Part.Circle(V(-93, 40, 0), V(0, 0, 1), 10), math.radians(90), math.radians(180)), False)
sketch8.addGeometry(Part.LineSegment(V(103, -50, 0), V(93, -50, 0)), False)
sketch8.addGeometry(Part.ArcOfCircle(Part.Circle(V(93, -40, 0), V(0, 0, 1), 10), math.radians(-90), math.radians(0)), False)
sketch8.addGeometry(Part.LineSegment(V(103, -40, 0), V(103, -50, 0)), False)
sketch8.addGeometry(Part.LineSegment(V(103, 50, 0), V(103, 40, 0)), False)
sketch8.addGeometry(Part.ArcOfCircle(Part.Circle(V(93, 40, 0), V(0, 0, 1), 10), math.radians(0), math.radians(90)), False)
sketch8.addGeometry(Part.LineSegment(V(93, 50, 0), V(103, 50, 0)), False)
sketch8.addGeometry(Part.ArcOfCircle(Part.Circle(V(-13, -40, 0), V(0, 0, 1), 10), math.radians(-90), math.radians(0)), False)
sketch8.addGeometry(Part.LineSegment(V(-3, -40, 0), V(-3, 40, 0)), False)
sketch8.addGeometry(Part.ArcOfCircle(Part.Circle(V(-13, 40, 0), V(0, 0, 1), 10), math.radians(0), math.radians(90)), False)
sketch8.addGeometry(Part.LineSegment(V(-13, 50, 0), V(13, 50, 0)), False)
sketch8.addGeometry(Part.ArcOfCircle(Part.Circle(V(13, 40, 0), V(0, 0, 1), 10), math.radians(90), math.radians(180)), False)
sketch8.addGeometry(Part.LineSegment(V(3, 40, 0), V(3, -40, 0)), False)
sketch8.addGeometry(Part.ArcOfCircle(Part.Circle(V(13, -40, 0), V(0, 0, 1), 10), math.radians(180), math.radians(270)), False)
sketch8.addGeometry(Part.LineSegment(V(13, -50, 0), V(-13, -50, 0)), False)
sketch8.addConstraint(Sketcher.Constraint("Coincident", 0, 2, 1, 1))
sketch8.addConstraint(Sketcher.Constraint("Tangent", 1, 2, 2, 1))
sketch8.addConstraint(Sketcher.Constraint("Tangent", 2, 2, 0, 1))
sketch8.addConstraint(Sketcher.Constraint("Coincident", 3, 2, 4, 1))
sketch8.addConstraint(Sketcher.Constraint("Tangent", 4, 2, 5, 1))
sketch8.addConstraint(Sketcher.Constraint("Tangent", 5, 2, 3, 1))
sketch8.addConstraint(Sketcher.Constraint("Tangent", 6, 2, 7, 1))
sketch8.addConstraint(Sketcher.Constraint("Tangent", 7, 2, 8, 1))
sketch8.addConstraint(Sketcher.Constraint("Coincident", 8, 2, 6, 1))
sketch8.addConstraint(Sketcher.Constraint("Tangent", 9, 2, 10, 1))
sketch8.addConstraint(Sketcher.Constraint("Tangent", 10, 2, 11, 1))
sketch8.addConstraint(Sketcher.Constraint("Coincident", 11, 2, 9, 1))
sketch8.addConstraint(Sketcher.Constraint("Tangent", 12, 2, 13, 1))
sketch8.addConstraint(Sketcher.Constraint("Tangent", 13, 2, 14, 1))
sketch8.addConstraint(Sketcher.Constraint("Tangent", 14, 2, 15, 1))
sketch8.addConstraint(Sketcher.Constraint("Tangent", 15, 2, 16, 1))
sketch8.addConstraint(Sketcher.Constraint("Tangent", 16, 2, 17, 1))
sketch8.addConstraint(Sketcher.Constraint("Tangent", 17, 2, 18, 1))
sketch8.addConstraint(Sketcher.Constraint("Tangent", 18, 2, 19, 1))
sketch8.addConstraint(Sketcher.Constraint("Tangent", 19, 2, 12, 1))
sketch8.addConstraint(Sketcher.Constraint("Horizontal", 0))
sketch8.addConstraint(Sketcher.Constraint("Vertical", 1))
sketch8.addConstraint(Sketcher.Constraint("Vertical", 3))
sketch8.addConstraint(Sketcher.Constraint("Horizontal", 4))
sketch8.addConstraint(Sketcher.Constraint("Horizontal", 6))
sketch8.addConstraint(Sketcher.Constraint("Vertical", 8))
sketch8.addConstraint(Sketcher.Constraint("Vertical", 9))
sketch8.addConstraint(Sketcher.Constraint("Horizontal", 11))
sketch8.addConstraint(Sketcher.Constraint("Vertical", 13))
sketch8.addConstraint(Sketcher.Constraint("Horizontal", 15))
sketch8.addConstraint(Sketcher.Constraint("Vertical", 17))
sketch8.addConstraint(Sketcher.Constraint("Horizontal", 19))
sketch8.addConstraint(Sketcher.Constraint("Equal", 2, 5))
sketch8.addConstraint(Sketcher.Constraint("Equal", 5, 7))
sketch8.addConstraint(Sketcher.Constraint("Equal", 7, 10))
sketch8.addConstraint(Sketcher.Constraint("Equal", 10, 12))
sketch8.addConstraint(Sketcher.Constraint("Equal", 12, 14))
sketch8.addConstraint(Sketcher.Constraint("Equal", 14, 16))
sketch8.addConstraint(Sketcher.Constraint("Equal", 16, 18))
sketch8.addConstraint(Sketcher.Constraint("Symmetric", 5, 3, 7, 3, -1, 1))
sketch8.addConstraint(Sketcher.Constraint("Symmetric", 2, 3, 10, 3, -1, 1))
sketch8.addConstraint(Sketcher.Constraint("Symmetric", 12, 3, 16, 3, -1, 1))
sketch8.addConstraint(Sketcher.Constraint("Symmetric", 2, 3, 7, 3, -2))
sketch8.addConstraint(Sketcher.Constraint("Horizontal", 7, 3, 12, 3))
sketch8.addConstraint(Sketcher.Constraint("Radius", 2, 9.999999))
sketch8.addConstraint(Sketcher.Constraint("DistanceY", 13, 1, 13, 2, 80.0))
sketch8.addConstraint(Sketcher.Constraint("DistanceX", 15, 1, 15, 2, 26.3))
sketch8.addConstraint(Sketcher.Constraint("DistanceX", 2, 3, 12, 3, 80.000001))
pad3 = doc.addObject("PartDesign::Pad", "Pad002")
body.addObject(pad3)
pad3.Profile = sketch8
pad3.Length = 10

doc.recompute()
